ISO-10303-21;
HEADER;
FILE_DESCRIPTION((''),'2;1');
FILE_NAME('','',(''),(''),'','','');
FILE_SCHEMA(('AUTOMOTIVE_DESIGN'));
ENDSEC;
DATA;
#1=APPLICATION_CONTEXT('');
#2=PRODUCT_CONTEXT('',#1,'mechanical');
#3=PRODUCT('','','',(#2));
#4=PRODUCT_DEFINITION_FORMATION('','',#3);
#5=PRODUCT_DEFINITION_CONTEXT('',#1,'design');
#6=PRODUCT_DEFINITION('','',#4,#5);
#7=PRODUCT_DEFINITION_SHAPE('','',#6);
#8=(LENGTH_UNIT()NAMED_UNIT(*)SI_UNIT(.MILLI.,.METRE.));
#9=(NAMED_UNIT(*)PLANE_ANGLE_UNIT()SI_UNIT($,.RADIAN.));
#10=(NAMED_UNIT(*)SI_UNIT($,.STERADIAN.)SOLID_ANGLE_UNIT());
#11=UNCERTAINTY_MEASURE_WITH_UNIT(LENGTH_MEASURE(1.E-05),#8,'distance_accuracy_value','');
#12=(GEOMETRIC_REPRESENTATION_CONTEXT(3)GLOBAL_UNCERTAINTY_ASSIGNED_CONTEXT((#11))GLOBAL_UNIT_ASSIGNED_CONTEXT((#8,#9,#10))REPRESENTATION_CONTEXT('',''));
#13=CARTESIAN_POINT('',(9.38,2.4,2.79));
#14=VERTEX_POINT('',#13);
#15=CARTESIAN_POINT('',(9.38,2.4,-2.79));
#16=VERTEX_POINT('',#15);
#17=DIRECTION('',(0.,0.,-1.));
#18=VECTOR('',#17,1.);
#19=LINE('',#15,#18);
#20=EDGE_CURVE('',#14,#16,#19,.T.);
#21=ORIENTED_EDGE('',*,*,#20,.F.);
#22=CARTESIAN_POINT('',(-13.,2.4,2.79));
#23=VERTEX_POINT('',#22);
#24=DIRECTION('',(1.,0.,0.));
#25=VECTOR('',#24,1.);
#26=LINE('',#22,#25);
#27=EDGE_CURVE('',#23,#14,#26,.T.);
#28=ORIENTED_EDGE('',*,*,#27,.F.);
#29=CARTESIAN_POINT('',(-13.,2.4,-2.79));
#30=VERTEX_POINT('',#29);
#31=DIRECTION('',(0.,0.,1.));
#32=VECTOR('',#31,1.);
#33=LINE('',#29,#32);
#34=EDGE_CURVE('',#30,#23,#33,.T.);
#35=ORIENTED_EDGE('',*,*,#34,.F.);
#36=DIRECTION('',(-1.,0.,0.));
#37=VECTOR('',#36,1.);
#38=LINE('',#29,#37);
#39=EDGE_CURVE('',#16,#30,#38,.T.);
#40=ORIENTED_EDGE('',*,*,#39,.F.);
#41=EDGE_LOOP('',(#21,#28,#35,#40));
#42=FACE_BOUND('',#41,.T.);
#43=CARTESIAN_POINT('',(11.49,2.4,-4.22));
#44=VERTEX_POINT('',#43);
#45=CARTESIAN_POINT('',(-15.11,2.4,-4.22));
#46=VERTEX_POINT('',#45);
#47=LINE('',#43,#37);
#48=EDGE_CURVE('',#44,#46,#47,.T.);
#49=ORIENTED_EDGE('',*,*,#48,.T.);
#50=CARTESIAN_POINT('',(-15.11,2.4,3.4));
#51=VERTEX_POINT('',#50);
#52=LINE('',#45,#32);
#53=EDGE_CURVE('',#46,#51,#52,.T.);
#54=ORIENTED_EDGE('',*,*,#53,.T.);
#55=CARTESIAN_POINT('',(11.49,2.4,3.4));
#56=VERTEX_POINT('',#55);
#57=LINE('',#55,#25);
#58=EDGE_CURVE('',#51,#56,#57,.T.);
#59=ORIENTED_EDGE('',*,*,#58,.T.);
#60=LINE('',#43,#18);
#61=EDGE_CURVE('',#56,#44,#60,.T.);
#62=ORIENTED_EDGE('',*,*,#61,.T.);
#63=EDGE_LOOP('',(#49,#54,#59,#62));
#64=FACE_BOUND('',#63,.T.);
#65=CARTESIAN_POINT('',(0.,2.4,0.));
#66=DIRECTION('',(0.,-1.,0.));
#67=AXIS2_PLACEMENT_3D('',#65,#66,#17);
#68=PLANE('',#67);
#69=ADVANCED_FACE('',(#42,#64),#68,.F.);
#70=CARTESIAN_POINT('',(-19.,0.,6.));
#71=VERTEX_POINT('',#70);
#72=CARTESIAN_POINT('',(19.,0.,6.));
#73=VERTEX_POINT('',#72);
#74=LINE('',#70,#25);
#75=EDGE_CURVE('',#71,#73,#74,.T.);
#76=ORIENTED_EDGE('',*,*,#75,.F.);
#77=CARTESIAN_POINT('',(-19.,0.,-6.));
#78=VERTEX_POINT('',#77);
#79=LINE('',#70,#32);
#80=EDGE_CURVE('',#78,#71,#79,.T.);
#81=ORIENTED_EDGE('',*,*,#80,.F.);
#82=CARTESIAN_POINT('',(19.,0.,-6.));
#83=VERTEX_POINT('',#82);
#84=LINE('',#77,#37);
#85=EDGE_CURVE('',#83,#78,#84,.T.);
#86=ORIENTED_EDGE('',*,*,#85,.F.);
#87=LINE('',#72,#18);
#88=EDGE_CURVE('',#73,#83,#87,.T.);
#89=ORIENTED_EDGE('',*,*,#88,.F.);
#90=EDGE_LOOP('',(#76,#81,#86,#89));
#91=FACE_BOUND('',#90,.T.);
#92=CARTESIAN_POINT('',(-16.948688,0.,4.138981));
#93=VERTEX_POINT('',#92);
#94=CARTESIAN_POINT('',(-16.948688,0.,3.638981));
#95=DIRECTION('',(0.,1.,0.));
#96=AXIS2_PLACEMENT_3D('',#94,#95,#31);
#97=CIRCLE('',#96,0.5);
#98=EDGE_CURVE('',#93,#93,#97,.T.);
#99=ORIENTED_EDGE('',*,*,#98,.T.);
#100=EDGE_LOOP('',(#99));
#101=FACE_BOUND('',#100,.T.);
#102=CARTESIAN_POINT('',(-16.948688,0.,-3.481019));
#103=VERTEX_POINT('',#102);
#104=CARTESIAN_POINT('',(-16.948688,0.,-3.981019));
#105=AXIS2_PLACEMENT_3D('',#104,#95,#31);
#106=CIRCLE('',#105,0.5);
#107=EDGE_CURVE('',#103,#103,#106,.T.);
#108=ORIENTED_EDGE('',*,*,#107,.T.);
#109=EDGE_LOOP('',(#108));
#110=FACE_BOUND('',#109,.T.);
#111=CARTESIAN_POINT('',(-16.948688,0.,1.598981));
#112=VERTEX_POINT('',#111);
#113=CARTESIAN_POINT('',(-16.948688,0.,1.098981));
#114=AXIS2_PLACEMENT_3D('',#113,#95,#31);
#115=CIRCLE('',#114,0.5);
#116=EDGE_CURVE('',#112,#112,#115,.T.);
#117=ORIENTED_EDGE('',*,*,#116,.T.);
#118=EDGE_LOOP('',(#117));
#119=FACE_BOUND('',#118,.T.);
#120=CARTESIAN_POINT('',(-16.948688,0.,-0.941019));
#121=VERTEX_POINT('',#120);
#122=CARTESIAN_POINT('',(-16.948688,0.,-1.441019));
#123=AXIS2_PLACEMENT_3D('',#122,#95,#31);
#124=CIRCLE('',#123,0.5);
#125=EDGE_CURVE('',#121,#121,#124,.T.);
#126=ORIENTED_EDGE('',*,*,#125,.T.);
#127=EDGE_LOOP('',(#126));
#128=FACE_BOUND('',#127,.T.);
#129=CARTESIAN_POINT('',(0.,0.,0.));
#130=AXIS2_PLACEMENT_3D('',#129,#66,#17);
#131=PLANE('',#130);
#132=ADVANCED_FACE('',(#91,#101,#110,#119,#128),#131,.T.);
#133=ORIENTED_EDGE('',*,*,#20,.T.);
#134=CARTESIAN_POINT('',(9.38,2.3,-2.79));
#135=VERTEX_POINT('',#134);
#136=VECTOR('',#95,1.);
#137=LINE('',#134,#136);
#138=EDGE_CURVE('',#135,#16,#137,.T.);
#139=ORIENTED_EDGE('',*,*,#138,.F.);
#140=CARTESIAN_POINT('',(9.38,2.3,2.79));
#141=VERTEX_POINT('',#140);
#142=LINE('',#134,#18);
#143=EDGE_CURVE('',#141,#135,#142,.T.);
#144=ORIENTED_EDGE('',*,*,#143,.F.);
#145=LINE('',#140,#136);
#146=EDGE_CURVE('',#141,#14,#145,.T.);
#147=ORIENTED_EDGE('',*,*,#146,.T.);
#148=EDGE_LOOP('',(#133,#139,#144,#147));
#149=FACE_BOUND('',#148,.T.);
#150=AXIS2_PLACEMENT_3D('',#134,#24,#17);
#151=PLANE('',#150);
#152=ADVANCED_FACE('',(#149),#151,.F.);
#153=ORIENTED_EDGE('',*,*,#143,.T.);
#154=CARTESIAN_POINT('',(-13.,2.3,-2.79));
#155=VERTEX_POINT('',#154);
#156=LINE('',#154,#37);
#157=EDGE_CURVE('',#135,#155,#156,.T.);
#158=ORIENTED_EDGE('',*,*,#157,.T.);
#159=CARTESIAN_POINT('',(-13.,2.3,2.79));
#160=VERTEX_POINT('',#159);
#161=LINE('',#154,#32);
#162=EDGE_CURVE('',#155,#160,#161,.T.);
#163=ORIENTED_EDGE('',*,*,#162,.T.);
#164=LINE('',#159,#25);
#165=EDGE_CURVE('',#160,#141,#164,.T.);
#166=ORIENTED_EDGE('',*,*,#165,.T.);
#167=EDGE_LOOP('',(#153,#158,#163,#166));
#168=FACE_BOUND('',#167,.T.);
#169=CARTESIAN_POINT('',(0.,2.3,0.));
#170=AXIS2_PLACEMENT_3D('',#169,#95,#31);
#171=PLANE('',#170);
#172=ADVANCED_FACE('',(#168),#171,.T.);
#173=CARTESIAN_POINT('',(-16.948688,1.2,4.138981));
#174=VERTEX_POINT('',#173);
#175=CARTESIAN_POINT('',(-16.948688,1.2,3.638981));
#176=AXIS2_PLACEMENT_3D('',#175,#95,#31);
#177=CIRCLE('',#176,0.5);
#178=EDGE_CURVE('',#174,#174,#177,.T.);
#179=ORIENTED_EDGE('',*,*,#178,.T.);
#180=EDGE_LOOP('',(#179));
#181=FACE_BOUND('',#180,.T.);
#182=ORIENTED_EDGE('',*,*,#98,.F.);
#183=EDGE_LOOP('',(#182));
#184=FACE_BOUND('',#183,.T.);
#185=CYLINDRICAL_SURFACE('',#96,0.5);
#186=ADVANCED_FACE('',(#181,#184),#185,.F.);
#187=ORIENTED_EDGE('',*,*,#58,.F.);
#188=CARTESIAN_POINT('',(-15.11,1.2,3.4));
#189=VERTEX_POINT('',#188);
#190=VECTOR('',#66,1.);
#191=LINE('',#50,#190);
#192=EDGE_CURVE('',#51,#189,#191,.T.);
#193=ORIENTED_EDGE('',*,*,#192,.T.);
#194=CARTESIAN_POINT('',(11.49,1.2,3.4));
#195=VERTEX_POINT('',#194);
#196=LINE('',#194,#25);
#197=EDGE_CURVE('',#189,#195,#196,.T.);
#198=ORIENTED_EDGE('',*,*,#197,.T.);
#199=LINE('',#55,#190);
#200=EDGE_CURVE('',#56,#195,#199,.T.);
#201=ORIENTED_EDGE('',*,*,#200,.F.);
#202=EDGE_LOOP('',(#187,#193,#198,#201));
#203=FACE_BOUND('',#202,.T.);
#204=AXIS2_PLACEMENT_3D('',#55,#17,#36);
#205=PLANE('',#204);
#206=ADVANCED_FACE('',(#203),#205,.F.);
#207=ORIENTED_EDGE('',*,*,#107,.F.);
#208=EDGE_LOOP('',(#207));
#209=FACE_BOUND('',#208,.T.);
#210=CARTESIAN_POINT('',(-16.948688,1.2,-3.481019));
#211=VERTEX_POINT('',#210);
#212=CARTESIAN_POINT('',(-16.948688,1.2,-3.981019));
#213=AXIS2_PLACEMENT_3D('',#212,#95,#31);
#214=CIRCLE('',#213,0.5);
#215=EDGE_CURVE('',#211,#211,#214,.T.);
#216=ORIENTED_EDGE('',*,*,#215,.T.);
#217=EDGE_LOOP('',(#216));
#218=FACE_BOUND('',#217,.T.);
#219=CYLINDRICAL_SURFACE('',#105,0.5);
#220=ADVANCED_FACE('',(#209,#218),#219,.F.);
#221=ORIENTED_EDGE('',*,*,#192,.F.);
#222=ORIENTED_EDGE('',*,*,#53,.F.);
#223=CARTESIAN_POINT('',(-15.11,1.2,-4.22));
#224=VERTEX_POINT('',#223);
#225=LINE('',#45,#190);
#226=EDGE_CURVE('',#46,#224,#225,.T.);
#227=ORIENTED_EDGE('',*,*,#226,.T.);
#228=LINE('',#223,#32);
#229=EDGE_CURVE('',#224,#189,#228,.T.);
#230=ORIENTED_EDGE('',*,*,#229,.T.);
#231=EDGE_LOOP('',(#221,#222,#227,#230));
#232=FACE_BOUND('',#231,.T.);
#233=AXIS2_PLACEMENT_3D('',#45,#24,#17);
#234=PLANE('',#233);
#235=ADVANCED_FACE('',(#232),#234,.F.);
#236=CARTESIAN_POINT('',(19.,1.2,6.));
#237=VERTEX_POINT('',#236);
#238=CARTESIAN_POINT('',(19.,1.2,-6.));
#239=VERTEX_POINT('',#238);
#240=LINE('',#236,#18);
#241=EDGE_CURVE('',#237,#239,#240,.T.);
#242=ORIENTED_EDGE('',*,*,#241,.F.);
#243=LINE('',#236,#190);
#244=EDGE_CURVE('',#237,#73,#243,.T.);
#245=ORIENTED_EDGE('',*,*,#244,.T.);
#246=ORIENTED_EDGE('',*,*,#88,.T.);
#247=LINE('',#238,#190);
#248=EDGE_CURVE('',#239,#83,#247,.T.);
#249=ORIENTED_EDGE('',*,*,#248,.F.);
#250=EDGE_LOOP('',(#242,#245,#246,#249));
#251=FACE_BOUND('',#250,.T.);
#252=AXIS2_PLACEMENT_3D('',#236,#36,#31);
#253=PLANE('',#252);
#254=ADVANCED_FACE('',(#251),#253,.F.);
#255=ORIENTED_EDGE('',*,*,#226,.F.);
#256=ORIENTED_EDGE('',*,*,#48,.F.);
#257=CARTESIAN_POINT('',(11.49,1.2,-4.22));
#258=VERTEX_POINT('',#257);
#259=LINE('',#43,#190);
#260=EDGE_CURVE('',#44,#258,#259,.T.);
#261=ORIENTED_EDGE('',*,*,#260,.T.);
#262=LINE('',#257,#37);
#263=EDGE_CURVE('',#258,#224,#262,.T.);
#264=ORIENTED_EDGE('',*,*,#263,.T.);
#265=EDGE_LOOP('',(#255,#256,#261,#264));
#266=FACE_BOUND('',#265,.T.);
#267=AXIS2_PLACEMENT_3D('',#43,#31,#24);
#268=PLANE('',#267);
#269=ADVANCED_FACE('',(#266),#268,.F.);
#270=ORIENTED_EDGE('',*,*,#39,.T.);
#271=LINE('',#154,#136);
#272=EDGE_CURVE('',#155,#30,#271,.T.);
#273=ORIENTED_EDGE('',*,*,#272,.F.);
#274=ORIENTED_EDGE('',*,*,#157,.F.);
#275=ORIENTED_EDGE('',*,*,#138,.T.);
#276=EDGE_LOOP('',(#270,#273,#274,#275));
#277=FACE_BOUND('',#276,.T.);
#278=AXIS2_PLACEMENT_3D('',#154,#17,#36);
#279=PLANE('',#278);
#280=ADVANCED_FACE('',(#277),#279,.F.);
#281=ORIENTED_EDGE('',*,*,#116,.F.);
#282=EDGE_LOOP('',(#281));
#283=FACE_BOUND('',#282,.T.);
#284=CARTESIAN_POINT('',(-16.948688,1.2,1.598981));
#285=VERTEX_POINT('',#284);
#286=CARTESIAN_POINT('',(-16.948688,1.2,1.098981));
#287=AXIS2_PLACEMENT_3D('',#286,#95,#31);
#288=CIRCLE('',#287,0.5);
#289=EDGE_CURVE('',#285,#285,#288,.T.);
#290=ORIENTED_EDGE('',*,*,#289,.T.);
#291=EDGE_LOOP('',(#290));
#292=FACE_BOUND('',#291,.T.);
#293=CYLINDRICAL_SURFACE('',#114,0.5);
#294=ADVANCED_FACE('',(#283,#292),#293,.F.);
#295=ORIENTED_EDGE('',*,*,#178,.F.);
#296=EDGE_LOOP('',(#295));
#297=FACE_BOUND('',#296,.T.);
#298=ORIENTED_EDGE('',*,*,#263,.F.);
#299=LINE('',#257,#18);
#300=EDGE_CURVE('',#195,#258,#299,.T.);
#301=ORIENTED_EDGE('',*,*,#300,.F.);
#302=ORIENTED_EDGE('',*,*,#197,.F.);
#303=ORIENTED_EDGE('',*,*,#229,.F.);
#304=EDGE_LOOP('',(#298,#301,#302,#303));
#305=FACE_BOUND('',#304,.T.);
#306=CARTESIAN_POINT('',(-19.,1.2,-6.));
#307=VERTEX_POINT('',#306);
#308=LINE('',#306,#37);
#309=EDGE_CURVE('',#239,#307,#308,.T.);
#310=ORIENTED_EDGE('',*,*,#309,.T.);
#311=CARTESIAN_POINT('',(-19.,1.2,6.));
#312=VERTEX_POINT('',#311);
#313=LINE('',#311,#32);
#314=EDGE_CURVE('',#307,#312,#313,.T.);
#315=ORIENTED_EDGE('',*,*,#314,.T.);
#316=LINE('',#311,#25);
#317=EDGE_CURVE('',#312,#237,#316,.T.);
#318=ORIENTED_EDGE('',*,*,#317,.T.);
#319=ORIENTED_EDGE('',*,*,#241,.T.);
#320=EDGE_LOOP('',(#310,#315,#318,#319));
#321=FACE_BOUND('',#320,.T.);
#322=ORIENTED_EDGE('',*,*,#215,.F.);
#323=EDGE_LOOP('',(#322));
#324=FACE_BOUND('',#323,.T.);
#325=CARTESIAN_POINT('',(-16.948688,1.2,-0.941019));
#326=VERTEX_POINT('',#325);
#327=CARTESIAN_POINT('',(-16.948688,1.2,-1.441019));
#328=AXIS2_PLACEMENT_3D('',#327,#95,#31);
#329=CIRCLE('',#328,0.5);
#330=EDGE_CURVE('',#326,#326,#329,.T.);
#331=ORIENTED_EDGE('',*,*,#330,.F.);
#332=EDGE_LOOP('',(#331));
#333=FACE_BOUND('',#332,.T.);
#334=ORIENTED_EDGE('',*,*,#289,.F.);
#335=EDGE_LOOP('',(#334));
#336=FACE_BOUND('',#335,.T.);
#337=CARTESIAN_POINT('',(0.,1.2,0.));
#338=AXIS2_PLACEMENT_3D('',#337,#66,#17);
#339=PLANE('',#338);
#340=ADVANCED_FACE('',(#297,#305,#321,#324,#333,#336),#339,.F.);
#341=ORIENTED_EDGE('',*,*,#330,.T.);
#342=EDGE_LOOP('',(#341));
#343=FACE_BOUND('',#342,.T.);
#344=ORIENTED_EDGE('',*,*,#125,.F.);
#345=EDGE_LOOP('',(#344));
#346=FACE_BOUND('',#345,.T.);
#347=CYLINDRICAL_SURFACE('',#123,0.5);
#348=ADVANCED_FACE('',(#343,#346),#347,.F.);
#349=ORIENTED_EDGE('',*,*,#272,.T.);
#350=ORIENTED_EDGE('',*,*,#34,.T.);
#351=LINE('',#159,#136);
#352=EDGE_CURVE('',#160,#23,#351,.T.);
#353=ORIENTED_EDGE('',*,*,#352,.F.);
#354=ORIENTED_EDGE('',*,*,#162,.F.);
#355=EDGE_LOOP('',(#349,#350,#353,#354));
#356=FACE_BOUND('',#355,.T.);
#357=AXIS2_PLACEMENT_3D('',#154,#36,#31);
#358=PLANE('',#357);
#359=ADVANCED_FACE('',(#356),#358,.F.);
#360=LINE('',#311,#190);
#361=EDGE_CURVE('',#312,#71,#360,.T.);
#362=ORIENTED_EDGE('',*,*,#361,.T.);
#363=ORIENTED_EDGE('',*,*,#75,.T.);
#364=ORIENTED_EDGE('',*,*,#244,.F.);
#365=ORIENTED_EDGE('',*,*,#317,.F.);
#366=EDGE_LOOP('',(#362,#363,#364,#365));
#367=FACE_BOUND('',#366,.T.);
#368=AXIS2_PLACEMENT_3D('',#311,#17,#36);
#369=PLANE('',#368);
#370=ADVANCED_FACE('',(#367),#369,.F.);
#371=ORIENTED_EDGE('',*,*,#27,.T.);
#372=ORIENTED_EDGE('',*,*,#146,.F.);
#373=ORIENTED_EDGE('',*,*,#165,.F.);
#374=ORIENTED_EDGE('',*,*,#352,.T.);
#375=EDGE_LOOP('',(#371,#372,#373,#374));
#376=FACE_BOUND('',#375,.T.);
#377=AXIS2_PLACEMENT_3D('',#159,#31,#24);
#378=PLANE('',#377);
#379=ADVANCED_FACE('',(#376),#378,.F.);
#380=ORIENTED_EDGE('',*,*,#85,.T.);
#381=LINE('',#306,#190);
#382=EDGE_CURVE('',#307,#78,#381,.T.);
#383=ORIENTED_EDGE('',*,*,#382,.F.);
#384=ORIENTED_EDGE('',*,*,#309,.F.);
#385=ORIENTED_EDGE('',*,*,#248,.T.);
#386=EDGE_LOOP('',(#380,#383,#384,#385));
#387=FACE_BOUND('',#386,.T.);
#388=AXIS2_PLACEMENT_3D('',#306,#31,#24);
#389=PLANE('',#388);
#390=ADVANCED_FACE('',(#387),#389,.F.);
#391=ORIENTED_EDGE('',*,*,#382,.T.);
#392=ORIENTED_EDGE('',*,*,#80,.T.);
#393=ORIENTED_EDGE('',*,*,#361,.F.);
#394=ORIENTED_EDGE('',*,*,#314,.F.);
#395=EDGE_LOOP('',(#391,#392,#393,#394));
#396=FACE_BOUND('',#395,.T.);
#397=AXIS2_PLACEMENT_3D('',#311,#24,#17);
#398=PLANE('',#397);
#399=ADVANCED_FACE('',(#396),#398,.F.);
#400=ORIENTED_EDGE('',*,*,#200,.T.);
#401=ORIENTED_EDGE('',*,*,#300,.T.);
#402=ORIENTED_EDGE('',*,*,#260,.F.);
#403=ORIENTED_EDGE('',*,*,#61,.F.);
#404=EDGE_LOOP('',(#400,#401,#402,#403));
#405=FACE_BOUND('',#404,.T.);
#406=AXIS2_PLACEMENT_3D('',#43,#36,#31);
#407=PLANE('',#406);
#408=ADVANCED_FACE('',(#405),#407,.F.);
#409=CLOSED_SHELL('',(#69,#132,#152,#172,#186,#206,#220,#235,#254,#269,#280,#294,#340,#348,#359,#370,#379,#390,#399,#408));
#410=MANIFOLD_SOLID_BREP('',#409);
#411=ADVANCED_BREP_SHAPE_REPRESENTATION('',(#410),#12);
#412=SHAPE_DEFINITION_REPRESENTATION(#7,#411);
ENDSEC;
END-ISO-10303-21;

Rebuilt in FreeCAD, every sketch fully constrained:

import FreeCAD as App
import Part
import Sketcher
from FreeCAD import Vector
Q = App.Units.Quantity

doc = App.newDocument("Part")
params = doc.addObject("Spreadsheet::Sheet", "Params")
for row, (alias, value) in enumerate([
    ("sketch1_width", "38 mm"),
    ("sketch1_height", "12 mm"),
    ("pad1_length", "1.2 mm"),
    ("sketch2_width", "26.6 mm"),
    ("sketch2_height", "7.62 mm"),
    ("pad2_length", "1.2 mm"),
    ("sketch3_width", "22.38 mm"),
    ("sketch3_height", "5.58 mm"),
    ("pocket1_length", "0.1 mm"),
    ("sketch4_diameter", "1 mm"),
], start=1):
    params.set(f"A{row}", alias)
    params.set(f"B{row}", "=" + value)
    params.setAlias(f"B{row}", alias)

body = doc.addObject("PartDesign::Body", "Body")

sketch1 = body.newObject("Sketcher::SketchObject", "Sketch")
sketch1.AttachmentSupport = (doc.getObject("XZ_Plane"), [""])
sketch1.MapMode = "FlatFace"
sketch1.addGeometry([
    Part.LineSegment(Vector(-19, -6, 0), Vector(-19, 6, 0)),
    Part.LineSegment(Vector(-19, 6, 0), Vector(19, 6, 0)),
    Part.LineSegment(Vector(19, 6, 0), Vector(19, -6, 0)),
    Part.LineSegment(Vector(19, -6, 0), Vector(-19, -6, 0)),
], False)
sketch1.addConstraint([
    Sketcher.Constraint("Coincident", 0, 2, 1, 1),
    Sketcher.Constraint("Coincident", 1, 2, 2, 1),
    Sketcher.Constraint("Coincident", 2, 2, 3, 1),
    Sketcher.Constraint("Coincident", 3, 2, 0, 1),
    Sketcher.Constraint("Vertical", 0),
    Sketcher.Constraint("Horizontal", 1),
    Sketcher.Constraint("Vertical", 2),
    Sketcher.Constraint("Horizontal", 3),
    Sketcher.Constraint("Symmetric", 0, 2, 2, 2, -1, 1),
    Sketcher.Constraint("DistanceX", 1, 1, 1, 2, Q("38 mm")),
    Sketcher.Constraint("DistanceY", 0, 1, 0, 2, Q("12 mm")),
])
sketch1.setExpression("Constraints[9]", "Params.sketch1_width")
sketch1.setExpression("Constraints[10]", "Params.sketch1_height")
pad1 = body.newObject("PartDesign::Pad", "Pad")
pad1.Profile = sketch1
pad1.setExpression("Length", "Params.pad1_length")
pad1.Reversed = True

sketch2 = body.newObject("Sketcher::SketchObject", "Sketch001")
sketch2.AttachmentSupport = (doc.getObject("XZ_Plane"), [""])
sketch2.MapMode = "FlatFace"
sketch2.AttachmentOffset = App.Placement(Vector(0, 0, -1.2), App.Rotation())
sketch2.addGeometry([
    Part.LineSegment(Vector(-15.11, -4.22, 0), Vector(-15.11, 3.4, 0)),
    Part.LineSegment(Vector(-15.11, 3.4, 0), Vector(11.49, 3.4, 0)),
    Part.LineSegment(Vector(11.49, 3.4, 0), Vector(11.49, -4.22, 0)),
    Part.LineSegment(Vector(11.49, -4.22, 0), Vector(-15.11, -4.22, 0)),
], False)
sketch2.addConstraint([
    Sketcher.Constraint("Coincident", 0, 2, 1, 1),
    Sketcher.Constraint("Coincident", 1, 2, 2, 1),
    Sketcher.Constraint("Coincident", 2, 2, 3, 1),
    Sketcher.Constraint("Coincident", 3, 2, 0, 1),
    Sketcher.Constraint("Vertical", 0),
    Sketcher.Constraint("Horizontal", 1),
    Sketcher.Constraint("Vertical", 2),
    Sketcher.Constraint("Horizontal", 3),
    Sketcher.Constraint("DistanceX", 1, 1, 1, 2, Q("26.6 mm")),
    Sketcher.Constraint("DistanceY", 0, 1, 0, 2, Q("7.62 mm")),
    Sketcher.Constraint("DistanceY", -1, 1, 0, 2, Q("3.4 mm")),
    Sketcher.Constraint("DistanceX", 0, 2, -1, 1, Q("15.11 mm")),
])
sketch2.setExpression("Constraints[8]", "Params.sketch2_width")
sketch2.setExpression("Constraints[9]", "Params.sketch2_height")
pad2 = body.newObject("PartDesign::Pad", "Pad001")
pad2.Profile = sketch2
pad2.setExpression("Length", "Params.pad2_length")
pad2.Reversed = True

sketch3 = body.newObject("Sketcher::SketchObject", "Sketch002")
sketch3.AttachmentSupport = (doc.getObject("XZ_Plane"), [""])
sketch3.MapMode = "FlatFace"
sketch3.AttachmentOffset = App.Placement(Vector(0, 0, -2.4), App.Rotation())
sketch3.addGeometry([
    Part.LineSegment(Vector(-13, -2.79, 0), Vector(-13, 2.79, 0)),
    Part.LineSegment(Vector(-13, 2.79, 0), Vector(9.38, 2.79, 0)),
    Part.LineSegment(Vector(9.38, 2.79, 0), Vector(9.38, -2.79, 0)),
    Part.LineSegment(Vector(9.38, -2.79, 0), Vector(-13, -2.79, 0)),
], False)
sketch3.addConstraint([
    Sketcher.Constraint("Coincident", 0, 2, 1, 1),
    Sketcher.Constraint("Coincident", 1, 2, 2, 1),
    Sketcher.Constraint("Coincident", 2, 2, 3, 1),
    Sketcher.Constraint("Coincident", 3, 2, 0, 1),
    Sketcher.Constraint("Vertical", 0),
    Sketcher.Constraint("Horizontal", 1),
    Sketcher.Constraint("Vertical", 2),
    Sketcher.Constraint("Horizontal", 3),
    Sketcher.Constraint("DistanceX", 0, 2, -1, 1, Q("13 mm")),
    Sketcher.Constraint("DistanceX", 1, 1, 1, 2, Q("22.38 mm")),
    Sketcher.Constraint("DistanceY", 0, 1, 0, 2, Q("5.58 mm")),
    Sketcher.Constraint("DistanceY", -1, 1, 0, 2, Q("2.79 mm")),
])
sketch3.setExpression("Constraints[9]", "Params.sketch3_width")
sketch3.setExpression("Constraints[10]", "Params.sketch3_height")
pocket1 = body.newObject("PartDesign::Pocket", "Pocket")
pocket1.Profile = sketch3
pocket1.setExpression("Length", "Params.pocket1_length")
pocket1.Reversed = True

sketch4 = body.newObject("Sketcher::SketchObject", "Sketch003")
sketch4.AttachmentSupport = (doc.getObject("XZ_Plane"), [""])
sketch4.MapMode = "FlatFace"
sketch4.AttachmentOffset = App.Placement(Vector(0, 0, -1.2), App.Rotation())
sketch4.addGeometry([
    Part.Circle(Vector(-16.948688, -3.981019, 0), Vector(0, 0, 1), 0.5),
    Part.Circle(Vector(-16.948688, -1.441019, 0), Vector(0, 0, 1), 0.5),
    Part.Circle(Vector(-16.948688, 1.098981, 0), Vector(0, 0, 1), 0.5),
    Part.Circle(Vector(-16.948688, 3.638981, 0), Vector(0, 0, 1), 0.5),
], False)
sketch4.addConstraint([
    Sketcher.Constraint("Equal", 0, 1),
    Sketcher.Constraint("Equal", 1, 2),
    Sketcher.Constraint("Equal", 2, 3),
    Sketcher.Constraint("Vertical", 0, 3, 1, 3),
    Sketcher.Constraint("Vertical", 1, 3, 2, 3),
    Sketcher.Constraint("Vertical", 2, 3, 3, 3),
    Sketcher.Constraint("Diameter", 0, Q("1 mm")),
    Sketcher.Constraint("DistanceY", 0, 3, 1, 3, Q("2.54 mm")),
    Sketcher.Constraint("DistanceY", 1, 3, 2, 3, Q("2.54 mm")),
    Sketcher.Constraint("DistanceY", 2, 3, 3, 3, Q("2.54 mm")),
    Sketcher.Constraint("DistanceX", 0, 3, -1, 1, Q("16.948688 mm")),
    Sketcher.Constraint("DistanceY", 0, 3, -1, 1, Q("3.981019 mm")),
])
sketch4.setExpression("Constraints[6]", "Params.sketch4_diameter")
pocket2 = body.newObject("PartDesign::Pocket", "Pocket001")
pocket2.Profile = sketch4
pocket2.Type = "ThroughAll"
pocket2.Reversed = True

doc.recompute()
